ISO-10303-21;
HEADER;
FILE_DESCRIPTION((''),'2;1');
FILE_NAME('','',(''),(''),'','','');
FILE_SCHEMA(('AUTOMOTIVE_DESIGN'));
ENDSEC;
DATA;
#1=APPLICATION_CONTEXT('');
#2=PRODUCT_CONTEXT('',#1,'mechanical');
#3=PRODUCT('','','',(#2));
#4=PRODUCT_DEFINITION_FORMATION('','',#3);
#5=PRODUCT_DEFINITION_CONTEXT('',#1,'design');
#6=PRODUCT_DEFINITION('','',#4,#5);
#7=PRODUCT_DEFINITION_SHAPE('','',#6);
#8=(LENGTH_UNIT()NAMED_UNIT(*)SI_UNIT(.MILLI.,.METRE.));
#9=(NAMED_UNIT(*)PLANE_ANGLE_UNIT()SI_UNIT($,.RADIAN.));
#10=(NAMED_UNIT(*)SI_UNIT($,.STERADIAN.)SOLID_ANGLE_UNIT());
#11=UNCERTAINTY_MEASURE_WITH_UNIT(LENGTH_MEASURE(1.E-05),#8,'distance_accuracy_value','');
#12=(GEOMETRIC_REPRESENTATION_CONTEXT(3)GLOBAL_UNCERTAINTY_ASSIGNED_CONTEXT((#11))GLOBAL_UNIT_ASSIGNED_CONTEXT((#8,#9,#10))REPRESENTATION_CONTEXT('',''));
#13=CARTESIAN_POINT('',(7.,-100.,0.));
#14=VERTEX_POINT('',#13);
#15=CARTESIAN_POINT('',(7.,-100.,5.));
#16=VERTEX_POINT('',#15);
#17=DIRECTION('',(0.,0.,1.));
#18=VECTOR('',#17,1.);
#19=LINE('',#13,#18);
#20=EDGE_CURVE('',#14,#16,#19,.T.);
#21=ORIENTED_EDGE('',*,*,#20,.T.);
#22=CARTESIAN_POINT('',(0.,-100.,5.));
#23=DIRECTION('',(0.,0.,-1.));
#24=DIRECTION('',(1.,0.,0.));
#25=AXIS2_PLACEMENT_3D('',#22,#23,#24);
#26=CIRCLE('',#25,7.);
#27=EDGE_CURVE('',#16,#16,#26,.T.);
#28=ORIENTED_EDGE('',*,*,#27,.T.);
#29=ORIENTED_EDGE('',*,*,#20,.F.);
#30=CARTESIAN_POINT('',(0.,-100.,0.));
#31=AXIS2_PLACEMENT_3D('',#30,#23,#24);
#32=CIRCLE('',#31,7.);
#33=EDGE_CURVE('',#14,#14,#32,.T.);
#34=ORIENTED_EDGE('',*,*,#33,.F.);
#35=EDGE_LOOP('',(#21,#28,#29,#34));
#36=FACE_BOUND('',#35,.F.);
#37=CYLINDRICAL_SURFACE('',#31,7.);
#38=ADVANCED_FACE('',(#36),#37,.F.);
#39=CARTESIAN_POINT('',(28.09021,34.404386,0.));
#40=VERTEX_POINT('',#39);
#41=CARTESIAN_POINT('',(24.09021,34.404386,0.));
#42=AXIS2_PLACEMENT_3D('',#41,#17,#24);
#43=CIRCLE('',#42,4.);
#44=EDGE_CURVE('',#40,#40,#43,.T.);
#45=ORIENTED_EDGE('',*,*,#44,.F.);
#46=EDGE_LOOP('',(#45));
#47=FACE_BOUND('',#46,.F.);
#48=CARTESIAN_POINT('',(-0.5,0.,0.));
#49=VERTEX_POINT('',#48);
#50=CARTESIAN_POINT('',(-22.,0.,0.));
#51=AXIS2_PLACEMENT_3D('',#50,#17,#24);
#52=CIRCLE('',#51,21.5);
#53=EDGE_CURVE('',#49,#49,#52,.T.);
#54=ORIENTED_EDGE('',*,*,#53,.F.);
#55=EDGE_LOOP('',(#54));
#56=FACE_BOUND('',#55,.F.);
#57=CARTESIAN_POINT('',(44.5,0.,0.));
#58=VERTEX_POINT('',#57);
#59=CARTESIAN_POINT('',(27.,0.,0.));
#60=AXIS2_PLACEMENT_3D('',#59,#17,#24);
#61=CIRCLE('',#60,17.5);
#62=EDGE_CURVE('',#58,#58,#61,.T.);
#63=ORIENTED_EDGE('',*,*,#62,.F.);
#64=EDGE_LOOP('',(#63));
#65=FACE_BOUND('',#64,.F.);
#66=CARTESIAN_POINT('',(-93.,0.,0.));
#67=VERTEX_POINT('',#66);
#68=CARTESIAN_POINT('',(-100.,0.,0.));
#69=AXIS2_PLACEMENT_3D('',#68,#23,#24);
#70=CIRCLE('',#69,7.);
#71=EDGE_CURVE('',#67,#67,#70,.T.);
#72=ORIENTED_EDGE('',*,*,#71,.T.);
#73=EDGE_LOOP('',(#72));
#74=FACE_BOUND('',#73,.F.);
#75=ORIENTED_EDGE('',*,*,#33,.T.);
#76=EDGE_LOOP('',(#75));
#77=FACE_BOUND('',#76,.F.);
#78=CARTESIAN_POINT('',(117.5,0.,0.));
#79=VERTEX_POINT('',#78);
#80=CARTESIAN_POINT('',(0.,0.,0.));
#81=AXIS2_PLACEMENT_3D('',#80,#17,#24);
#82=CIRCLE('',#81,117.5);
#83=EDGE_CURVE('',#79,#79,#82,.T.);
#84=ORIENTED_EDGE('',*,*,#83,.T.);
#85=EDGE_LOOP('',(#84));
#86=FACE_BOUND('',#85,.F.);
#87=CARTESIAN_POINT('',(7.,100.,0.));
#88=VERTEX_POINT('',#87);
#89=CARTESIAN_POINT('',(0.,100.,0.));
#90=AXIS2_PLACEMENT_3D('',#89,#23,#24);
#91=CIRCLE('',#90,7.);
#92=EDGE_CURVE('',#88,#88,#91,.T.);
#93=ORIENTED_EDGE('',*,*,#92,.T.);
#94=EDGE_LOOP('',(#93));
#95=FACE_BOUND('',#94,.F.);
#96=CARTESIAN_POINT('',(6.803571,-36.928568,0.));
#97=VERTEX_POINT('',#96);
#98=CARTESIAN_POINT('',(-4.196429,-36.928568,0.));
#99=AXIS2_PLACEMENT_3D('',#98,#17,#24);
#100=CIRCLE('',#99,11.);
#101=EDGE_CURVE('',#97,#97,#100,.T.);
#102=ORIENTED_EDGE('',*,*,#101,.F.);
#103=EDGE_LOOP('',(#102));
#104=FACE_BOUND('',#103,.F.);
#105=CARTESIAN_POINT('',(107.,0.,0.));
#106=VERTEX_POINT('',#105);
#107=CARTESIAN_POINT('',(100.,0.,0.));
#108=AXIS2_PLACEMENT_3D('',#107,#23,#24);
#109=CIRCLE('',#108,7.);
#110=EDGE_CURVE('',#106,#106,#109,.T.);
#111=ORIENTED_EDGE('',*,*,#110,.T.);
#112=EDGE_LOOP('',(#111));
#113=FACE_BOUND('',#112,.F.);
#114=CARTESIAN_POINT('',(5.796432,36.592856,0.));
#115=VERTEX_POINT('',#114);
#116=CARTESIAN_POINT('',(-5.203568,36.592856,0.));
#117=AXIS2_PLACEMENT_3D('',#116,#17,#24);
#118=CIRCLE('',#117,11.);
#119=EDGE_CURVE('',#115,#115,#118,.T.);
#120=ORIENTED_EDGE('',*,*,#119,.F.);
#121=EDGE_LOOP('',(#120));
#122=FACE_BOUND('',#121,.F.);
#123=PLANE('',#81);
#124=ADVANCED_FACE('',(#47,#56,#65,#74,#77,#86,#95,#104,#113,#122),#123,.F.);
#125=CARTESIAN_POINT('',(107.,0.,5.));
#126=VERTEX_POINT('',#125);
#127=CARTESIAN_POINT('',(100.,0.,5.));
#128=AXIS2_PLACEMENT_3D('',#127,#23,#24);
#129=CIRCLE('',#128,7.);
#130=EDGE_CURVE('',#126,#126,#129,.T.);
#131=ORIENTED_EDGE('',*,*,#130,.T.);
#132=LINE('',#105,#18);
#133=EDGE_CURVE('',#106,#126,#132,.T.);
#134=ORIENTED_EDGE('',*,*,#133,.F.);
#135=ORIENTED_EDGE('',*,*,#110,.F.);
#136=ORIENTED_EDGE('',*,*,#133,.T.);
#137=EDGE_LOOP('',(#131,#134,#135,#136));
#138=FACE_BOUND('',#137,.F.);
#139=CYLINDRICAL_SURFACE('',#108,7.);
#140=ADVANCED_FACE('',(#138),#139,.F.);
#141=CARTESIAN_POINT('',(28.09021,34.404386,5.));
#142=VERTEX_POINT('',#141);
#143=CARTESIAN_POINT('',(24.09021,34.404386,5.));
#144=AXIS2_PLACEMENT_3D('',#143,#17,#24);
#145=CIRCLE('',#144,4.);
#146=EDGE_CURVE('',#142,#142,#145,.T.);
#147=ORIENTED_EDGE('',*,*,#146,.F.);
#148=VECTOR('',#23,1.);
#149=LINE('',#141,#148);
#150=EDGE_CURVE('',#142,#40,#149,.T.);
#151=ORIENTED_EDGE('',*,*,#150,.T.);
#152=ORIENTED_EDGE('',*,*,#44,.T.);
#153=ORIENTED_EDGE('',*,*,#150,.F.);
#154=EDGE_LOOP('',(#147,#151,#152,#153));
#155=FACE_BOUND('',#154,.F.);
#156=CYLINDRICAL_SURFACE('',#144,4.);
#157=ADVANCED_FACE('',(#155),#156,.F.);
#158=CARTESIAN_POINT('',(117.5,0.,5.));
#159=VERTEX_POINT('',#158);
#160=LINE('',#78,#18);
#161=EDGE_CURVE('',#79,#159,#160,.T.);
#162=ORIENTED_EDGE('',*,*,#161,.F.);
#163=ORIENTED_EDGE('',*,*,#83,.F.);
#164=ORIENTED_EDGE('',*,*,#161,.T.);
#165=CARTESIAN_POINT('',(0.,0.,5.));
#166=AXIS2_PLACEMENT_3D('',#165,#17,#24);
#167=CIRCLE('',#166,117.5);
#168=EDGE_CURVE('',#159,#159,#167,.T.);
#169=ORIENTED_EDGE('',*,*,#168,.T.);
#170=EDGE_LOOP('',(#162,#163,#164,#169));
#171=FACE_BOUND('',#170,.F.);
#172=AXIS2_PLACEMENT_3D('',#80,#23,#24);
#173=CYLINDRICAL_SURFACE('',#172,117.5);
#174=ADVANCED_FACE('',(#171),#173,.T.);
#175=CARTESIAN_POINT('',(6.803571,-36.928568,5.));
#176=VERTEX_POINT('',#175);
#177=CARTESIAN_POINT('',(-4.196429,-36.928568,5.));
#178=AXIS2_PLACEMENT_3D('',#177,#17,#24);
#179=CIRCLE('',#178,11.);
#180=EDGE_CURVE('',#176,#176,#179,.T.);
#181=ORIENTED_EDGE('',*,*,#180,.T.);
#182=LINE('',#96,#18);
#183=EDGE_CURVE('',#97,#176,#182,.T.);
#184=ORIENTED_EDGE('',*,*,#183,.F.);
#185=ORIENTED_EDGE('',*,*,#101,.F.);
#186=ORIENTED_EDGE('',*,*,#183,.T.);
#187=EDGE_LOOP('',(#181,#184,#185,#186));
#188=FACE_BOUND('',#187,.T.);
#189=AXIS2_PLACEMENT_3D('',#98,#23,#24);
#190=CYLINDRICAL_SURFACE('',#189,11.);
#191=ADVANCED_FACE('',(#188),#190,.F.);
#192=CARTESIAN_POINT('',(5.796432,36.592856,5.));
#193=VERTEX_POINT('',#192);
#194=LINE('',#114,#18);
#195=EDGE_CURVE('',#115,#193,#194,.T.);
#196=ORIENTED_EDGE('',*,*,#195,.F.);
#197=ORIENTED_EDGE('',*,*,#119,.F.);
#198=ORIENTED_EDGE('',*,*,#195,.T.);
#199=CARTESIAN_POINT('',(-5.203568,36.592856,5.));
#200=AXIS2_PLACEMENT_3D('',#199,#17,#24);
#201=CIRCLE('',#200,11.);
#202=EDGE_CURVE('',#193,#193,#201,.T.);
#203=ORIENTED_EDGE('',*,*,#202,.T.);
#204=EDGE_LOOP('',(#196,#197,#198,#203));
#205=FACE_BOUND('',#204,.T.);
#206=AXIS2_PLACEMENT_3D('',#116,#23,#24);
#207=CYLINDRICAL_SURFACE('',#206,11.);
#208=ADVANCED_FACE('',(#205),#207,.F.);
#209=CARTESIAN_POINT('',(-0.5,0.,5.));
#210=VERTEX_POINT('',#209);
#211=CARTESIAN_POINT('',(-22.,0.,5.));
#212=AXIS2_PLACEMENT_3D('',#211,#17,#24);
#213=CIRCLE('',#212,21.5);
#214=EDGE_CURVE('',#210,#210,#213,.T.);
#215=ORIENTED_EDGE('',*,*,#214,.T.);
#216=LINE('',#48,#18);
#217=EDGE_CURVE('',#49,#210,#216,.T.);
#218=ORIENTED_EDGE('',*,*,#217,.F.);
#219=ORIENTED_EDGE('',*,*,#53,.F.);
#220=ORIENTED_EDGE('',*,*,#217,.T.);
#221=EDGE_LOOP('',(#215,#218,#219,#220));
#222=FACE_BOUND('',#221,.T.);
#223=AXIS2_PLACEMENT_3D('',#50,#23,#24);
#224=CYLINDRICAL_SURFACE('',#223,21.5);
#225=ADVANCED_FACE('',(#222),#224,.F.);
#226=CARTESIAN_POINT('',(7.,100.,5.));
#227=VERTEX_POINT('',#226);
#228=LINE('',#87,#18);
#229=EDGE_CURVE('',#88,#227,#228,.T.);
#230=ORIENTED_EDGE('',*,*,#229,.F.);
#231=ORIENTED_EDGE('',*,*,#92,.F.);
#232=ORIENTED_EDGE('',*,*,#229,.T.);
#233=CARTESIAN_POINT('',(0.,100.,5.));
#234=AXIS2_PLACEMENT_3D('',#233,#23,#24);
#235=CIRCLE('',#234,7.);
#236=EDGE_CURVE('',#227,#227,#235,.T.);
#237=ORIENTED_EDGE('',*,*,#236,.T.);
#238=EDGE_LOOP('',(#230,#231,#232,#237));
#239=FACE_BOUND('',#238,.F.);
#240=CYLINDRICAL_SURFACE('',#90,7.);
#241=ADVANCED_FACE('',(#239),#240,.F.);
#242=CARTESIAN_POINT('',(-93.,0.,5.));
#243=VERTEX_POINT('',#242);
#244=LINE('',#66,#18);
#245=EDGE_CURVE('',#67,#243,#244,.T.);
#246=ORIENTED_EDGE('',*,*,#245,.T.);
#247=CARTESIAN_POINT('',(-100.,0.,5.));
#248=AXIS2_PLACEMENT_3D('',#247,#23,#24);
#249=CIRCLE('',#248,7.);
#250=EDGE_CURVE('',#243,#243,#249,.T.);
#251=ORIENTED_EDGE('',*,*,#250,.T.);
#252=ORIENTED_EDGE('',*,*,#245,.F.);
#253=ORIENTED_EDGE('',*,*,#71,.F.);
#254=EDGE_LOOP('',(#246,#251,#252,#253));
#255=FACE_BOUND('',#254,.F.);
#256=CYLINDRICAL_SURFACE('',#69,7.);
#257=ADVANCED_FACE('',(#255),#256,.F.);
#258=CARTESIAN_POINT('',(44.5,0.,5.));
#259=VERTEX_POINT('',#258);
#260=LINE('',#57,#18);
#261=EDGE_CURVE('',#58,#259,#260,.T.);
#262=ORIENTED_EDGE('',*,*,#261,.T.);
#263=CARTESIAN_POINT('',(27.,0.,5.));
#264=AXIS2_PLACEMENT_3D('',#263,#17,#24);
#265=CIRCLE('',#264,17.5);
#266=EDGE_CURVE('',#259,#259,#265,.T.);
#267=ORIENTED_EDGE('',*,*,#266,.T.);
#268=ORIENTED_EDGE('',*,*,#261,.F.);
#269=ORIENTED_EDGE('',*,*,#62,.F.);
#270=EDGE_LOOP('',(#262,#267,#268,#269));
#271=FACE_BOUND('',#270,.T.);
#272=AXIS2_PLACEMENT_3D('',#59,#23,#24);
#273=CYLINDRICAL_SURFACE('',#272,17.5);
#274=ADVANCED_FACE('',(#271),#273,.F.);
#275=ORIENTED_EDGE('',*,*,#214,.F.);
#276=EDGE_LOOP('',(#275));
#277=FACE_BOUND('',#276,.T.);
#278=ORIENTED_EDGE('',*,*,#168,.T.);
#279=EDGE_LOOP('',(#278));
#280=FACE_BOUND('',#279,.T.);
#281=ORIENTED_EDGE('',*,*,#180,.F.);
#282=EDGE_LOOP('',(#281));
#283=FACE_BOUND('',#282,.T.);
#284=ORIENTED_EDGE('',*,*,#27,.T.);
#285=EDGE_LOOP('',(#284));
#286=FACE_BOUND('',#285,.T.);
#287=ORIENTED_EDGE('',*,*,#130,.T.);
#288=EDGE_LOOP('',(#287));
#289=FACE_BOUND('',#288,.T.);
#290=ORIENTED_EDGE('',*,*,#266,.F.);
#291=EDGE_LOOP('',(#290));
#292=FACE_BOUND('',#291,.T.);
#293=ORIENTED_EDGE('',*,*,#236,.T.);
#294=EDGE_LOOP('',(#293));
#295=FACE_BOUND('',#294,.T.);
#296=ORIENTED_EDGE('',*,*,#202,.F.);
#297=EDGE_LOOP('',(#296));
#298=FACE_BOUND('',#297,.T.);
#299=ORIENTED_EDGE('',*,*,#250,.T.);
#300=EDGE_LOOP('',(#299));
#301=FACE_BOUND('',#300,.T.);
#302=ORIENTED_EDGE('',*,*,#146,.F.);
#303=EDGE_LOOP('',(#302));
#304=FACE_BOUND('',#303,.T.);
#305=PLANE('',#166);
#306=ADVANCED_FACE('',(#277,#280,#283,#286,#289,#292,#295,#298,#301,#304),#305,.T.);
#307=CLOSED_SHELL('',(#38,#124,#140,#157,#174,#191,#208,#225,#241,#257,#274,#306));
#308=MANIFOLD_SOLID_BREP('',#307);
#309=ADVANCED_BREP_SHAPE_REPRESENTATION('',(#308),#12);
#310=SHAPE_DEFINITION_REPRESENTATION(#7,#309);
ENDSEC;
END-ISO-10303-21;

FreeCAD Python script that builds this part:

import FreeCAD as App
import Part
import Sketcher
from FreeCAD import Vector

doc = App.newDocument("Part")
body = doc.addObject("PartDesign::Body", "Body")

# Sketch on XY plane
sketch1 = body.newObject("Sketcher::SketchObject", "Sketch")
sketch1.AttachmentSupport = (doc.getObject("XY_Plane"), [""])
sketch1.MapMode = "FlatFace"
sketch1.addGeometry(Part.Circle(Vector(0, 0, 0), Vector(0, 0, 1), 118), False)
sketch1.addGeometry(Part.Circle(Vector(-4, -37, 0), Vector(0, 0, 1), 11), False)
sketch1.addGeometry(Part.Circle(Vector(-22, 0, 0), Vector(0, 0, 1), 22), False)
sketch1.addGeometry(Part.Circle(Vector(-5, 37, 0), Vector(0, 0, 1), 11), False)
sketch1.addGeometry(Part.Circle(Vector(27, 0, 0), Vector(0, 0, 1), 18), False)
sketch1.addConstraint(Sketcher.Constraint("Coincident", 0, 3, -1, 1))
sketch1.addConstraint(Sketcher.Constraint("Equal", 1, 3))
sketch1.addConstraint(Sketcher.Constraint("PointOnObject", 2, 3, -1))
sketch1.addConstraint(Sketcher.Constraint("PointOnObject", 4, 3, -1))
sketch1.addConstraint(Sketcher.Constraint("Diameter", 0, 235.0))
sketch1.addConstraint(Sketcher.Constraint("Diameter", 1, 22.0))
sketch1.addConstraint(Sketcher.Constraint("Diameter", 2, 43.0))
sketch1.addConstraint(Sketcher.Constraint("Diameter", 4, 35.0))
sketch1.addConstraint(Sketcher.Constraint("DistanceX", 2, 3, -1, 1, 22.0))
sketch1.addConstraint(Sketcher.Constraint("DistanceX", -1, 1, 4, 3, 27.0))
sketch1.addConstraint(Sketcher.Constraint("DistanceX", 1, 3, -1, 1, 4.196429))
sketch1.addConstraint(Sketcher.Constraint("DistanceX", 2, 3, 3, 3, 16.796432))
sketch1.addConstraint(Sketcher.Constraint("DistanceY", 1, 3, -1, 1, 36.928568))
sketch1.addConstraint(Sketcher.Constraint("DistanceY", -1, 1, 3, 3, 36.592856))
pad1 = body.newObject("PartDesign::Pad", "Pad")
pad1.Profile = sketch1
pad1.Length = 5

# Sketch on XY plane
sketch2 = body.newObject("Sketcher::SketchObject", "Sketch001")
sketch2.AttachmentSupport = (doc.getObject("XY_Plane"), [""])
sketch2.MapMode = "FlatFace"
sketch2.addGeometry(Part.Circle(Vector(-100, 0, 0), Vector(0, 0, 1), 7), False)
sketch2.addGeometry(Part.Circle(Vector(0, -100, 0), Vector(0, 0, 1), 7), False)
sketch2.addGeometry(Part.Circle(Vector(100, 0, 0), Vector(0, 0, 1), 7), False)
sketch2.addGeometry(Part.Circle(Vector(0, 100, 0), Vector(0, 0, 1), 7), False)
sketch2.addConstraint(Sketcher.Constraint("Equal", 0, 1))
sketch2.addConstraint(Sketcher.Constraint("Equal", 1, 2))
sketch2.addConstraint(Sketcher.Constraint("Equal", 2, 3))
sketch2.addConstraint(Sketcher.Constraint("Symmetric", 0, 3, 2, 3, -1, 1))
sketch2.addConstraint(Sketcher.Constraint("Symmetric", 1, 3, 3, 3, -1, 1))
sketch2.addConstraint(Sketcher.Constraint("PointOnObject", 0, 3, -1))
sketch2.addConstraint(Sketcher.Constraint("PointOnObject", 1, 3, -2))
sketch2.addConstraint(Sketcher.Constraint("Diameter", 0, 14.0))
sketch2.addConstraint(Sketcher.Constraint("DistanceX", 0, 3, -1, 1, 100.0))
sketch2.addConstraint(Sketcher.Constraint("DistanceY", 1, 3, -1, 1, 100.0))
pocket1 = body.newObject("PartDesign::Pocket", "Pocket")
pocket1.Profile = sketch2
pocket1.Type = "ThroughAll"
pocket1.Reversed = True

# Sketch on XY plane
sketch3 = body.newObject("Sketcher::SketchObject", "Sketch002")
sketch3.AttachmentSupport = (doc.getObject("XY_Plane"), [""])
sketch3.MapMode = "FlatFace"
sketch3.AttachmentOffset = App.Placement(Vector(0, 0, 5), App.Rotation())
sketch3.addGeometry(Part.Circle(Vector(24.1, 34.4, 0), Vector(0, 0, 1), 4), False)
sketch3.addConstraint(Sketcher.Constraint("Diameter", 0, 8.0))
sketch3.addConstraint(Sketcher.Constraint("DistanceX", -1, 1, 0, 3, 24.09021))
sketch3.addConstraint(Sketcher.Constraint("DistanceY", -1, 1, 0, 3, 34.404386))
pocket2 = body.newObject("PartDesign::Pocket", "Pocket001")
pocket2.Profile = sketch3
pocket2.Type = "ThroughAll"

doc.recompute()
